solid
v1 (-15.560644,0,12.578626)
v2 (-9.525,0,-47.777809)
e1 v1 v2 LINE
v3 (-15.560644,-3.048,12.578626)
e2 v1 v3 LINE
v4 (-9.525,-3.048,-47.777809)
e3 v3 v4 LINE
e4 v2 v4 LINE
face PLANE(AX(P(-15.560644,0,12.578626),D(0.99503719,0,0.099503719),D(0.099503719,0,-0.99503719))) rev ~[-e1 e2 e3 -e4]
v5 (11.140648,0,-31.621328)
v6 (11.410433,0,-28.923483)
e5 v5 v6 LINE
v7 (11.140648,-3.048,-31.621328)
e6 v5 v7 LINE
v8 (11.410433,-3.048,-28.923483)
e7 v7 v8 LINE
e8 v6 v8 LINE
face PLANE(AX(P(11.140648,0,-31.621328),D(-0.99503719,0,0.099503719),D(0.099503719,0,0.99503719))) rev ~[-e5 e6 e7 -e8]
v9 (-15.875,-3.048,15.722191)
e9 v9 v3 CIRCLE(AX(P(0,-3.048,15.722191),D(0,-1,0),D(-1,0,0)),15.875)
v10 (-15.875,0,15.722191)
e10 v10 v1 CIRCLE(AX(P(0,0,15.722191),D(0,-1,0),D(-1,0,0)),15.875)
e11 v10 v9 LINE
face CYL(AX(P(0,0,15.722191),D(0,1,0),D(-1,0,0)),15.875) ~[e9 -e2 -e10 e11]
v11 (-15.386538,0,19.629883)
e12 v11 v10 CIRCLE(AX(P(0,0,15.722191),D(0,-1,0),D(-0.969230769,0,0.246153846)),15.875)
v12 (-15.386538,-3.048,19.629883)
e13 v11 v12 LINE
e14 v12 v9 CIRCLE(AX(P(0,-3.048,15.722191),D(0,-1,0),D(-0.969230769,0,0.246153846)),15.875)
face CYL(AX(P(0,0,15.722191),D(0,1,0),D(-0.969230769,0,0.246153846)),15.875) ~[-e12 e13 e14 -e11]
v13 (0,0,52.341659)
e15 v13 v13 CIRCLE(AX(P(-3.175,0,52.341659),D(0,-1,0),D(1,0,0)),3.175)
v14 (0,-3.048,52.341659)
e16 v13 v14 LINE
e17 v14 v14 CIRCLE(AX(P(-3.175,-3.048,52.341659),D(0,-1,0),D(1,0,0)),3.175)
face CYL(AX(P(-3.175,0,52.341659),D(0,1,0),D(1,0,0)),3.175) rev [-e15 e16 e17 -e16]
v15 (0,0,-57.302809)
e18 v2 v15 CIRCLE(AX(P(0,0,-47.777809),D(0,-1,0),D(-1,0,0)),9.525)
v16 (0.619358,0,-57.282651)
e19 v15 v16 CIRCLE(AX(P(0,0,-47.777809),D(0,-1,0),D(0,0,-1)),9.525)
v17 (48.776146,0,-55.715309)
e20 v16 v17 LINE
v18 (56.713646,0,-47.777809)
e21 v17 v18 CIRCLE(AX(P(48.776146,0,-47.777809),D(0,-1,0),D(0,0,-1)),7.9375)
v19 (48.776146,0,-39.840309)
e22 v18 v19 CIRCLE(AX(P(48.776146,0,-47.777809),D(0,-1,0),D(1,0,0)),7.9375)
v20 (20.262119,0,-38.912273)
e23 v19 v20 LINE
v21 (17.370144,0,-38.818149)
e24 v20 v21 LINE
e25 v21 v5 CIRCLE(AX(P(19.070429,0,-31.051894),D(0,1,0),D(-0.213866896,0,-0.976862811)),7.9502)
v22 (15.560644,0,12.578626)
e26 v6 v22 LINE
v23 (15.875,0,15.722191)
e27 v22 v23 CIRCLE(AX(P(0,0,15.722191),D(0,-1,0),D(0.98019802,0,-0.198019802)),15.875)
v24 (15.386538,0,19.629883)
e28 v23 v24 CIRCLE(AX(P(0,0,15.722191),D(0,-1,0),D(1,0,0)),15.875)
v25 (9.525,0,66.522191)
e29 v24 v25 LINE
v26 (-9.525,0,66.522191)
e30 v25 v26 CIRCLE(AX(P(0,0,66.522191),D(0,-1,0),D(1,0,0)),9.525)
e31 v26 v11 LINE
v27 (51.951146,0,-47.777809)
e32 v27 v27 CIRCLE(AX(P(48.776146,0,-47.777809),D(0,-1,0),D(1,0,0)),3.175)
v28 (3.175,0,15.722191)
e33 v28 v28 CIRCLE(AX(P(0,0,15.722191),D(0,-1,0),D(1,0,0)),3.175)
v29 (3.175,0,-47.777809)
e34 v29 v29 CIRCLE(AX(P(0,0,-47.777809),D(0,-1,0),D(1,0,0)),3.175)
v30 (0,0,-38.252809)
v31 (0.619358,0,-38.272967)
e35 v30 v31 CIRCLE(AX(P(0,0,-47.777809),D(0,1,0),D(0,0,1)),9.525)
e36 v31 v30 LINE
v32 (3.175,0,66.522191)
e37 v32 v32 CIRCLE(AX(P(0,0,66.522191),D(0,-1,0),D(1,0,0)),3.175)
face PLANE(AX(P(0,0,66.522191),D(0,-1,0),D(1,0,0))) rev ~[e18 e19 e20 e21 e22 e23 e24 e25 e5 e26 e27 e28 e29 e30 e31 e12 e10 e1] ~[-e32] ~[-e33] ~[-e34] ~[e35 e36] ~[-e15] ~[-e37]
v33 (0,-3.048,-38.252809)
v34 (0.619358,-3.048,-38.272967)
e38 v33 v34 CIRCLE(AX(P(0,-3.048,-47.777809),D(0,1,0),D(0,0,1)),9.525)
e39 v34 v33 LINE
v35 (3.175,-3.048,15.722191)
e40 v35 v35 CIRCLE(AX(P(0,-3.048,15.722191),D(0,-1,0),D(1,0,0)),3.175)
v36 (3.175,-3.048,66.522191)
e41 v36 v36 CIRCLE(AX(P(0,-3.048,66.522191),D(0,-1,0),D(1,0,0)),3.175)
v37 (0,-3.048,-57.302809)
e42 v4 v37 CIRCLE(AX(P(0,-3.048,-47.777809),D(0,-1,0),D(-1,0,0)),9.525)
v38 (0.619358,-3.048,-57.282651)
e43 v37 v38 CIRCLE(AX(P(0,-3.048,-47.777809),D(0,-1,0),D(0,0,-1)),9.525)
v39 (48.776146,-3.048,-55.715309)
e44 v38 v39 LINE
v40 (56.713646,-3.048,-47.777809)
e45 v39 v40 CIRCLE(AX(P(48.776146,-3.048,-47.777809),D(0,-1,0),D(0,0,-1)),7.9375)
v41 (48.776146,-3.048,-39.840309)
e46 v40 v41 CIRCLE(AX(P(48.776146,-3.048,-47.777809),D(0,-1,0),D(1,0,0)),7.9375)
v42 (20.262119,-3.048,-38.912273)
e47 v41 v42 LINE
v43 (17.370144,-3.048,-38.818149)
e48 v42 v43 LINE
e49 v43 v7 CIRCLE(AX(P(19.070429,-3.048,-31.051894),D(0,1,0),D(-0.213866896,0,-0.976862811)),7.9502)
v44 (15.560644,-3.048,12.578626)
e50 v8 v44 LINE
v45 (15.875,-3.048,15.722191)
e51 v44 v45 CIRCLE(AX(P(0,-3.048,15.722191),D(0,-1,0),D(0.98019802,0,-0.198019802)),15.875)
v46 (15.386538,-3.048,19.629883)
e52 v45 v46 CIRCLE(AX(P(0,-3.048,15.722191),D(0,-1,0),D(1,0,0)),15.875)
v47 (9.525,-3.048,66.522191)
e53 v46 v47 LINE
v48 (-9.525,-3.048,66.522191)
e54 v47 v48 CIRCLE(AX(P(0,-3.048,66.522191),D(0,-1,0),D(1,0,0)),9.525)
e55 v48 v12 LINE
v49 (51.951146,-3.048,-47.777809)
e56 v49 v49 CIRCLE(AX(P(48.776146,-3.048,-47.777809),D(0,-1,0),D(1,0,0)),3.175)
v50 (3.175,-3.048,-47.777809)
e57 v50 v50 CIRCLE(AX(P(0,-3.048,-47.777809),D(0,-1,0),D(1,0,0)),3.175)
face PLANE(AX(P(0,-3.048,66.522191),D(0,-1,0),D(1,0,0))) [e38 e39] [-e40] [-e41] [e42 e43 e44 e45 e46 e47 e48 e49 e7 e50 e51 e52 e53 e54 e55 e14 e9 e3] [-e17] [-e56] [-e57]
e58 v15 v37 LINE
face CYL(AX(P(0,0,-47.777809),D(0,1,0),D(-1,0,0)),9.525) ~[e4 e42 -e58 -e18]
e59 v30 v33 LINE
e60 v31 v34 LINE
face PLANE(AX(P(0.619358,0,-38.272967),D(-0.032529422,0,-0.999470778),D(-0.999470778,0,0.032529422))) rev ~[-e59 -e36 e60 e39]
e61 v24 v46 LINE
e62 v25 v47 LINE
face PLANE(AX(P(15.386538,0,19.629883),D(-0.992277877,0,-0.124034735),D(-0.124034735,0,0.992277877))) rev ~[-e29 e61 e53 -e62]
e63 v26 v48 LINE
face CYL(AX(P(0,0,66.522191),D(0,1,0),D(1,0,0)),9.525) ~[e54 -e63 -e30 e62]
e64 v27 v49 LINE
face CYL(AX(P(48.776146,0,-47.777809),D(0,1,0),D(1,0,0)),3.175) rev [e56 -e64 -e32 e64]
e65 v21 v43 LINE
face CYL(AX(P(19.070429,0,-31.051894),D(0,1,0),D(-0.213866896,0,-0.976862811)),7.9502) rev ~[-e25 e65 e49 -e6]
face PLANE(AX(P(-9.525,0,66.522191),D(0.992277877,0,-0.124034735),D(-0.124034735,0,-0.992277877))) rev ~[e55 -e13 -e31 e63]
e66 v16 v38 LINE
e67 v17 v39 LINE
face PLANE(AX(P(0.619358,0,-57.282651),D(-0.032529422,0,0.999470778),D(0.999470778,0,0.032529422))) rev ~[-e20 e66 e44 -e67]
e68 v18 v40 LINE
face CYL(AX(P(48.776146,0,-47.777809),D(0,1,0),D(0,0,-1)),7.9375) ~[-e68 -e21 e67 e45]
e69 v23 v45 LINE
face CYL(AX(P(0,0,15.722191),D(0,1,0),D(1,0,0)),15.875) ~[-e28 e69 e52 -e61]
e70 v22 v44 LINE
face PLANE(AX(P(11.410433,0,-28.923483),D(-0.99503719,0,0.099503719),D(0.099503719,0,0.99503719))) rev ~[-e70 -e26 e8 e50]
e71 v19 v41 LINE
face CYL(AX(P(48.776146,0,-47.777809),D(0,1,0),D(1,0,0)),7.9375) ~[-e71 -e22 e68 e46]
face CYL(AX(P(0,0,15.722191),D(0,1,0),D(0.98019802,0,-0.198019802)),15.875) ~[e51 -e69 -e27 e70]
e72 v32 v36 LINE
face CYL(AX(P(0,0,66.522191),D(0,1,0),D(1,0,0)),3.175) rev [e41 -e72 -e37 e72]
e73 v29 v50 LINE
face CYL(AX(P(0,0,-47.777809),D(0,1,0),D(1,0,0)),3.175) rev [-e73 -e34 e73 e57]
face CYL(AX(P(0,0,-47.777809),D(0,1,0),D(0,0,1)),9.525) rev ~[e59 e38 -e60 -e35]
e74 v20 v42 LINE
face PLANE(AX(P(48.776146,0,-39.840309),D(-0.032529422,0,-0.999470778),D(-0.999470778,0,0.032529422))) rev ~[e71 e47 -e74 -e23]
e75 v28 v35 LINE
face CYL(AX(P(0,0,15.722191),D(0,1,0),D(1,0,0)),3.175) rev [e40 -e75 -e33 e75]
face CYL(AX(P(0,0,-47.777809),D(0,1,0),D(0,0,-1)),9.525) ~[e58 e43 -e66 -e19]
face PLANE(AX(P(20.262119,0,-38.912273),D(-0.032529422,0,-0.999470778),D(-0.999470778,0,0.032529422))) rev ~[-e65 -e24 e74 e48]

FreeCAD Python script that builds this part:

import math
import FreeCAD as App
import Part
import Sketcher

V = App.Vector
Q = App.Units.Quantity

doc = App.newDocument("Part")
body = doc.addObject("PartDesign::Body", "Body")

# Sketch on XZ plane
sketch1 = body.newObject("Sketcher::SketchObject", "Sketch")
sketch1.AttachmentSupport = (doc.getObject("XZ_Plane"), [""])
sketch1.MapMode = "FlatFace"
sketch1.addGeometry(Part.ArcOfCircle(Part.Circle(V(0, -47.777809, 0), V(0, 0, 1), 9.525), math.radians(-90), math.radians(-86.271745)), False)
sketch1.addGeometry(Part.LineSegment(V(0.619358, -57.282651, 0), V(48.776146, -55.715309, 0)), False)
sketch1.addGeometry(Part.ArcOfCircle(Part.Circle(V(48.776146, -47.777809, 0), V(0, 0, 1), 7.9375), math.radians(-90), math.radians(0)), False)
sketch1.addGeometry(Part.ArcOfCircle(Part.Circle(V(48.776146, -47.777809, 0), V(0, 0, 1), 7.9375), math.radians(0), math.radians(90)), False)
sketch1.addGeometry(Part.LineSegment(V(48.776146, -39.840309, 0), V(20.262119, -38.912273, 0)), False)
sketch1.addGeometry(Part.LineSegment(V(20.262119, -38.912273, 0), V(17.370144, -38.818149, 0)), False)
sketch1.addGeometry(Part.ArcOfCircle(Part.Circle(V(19.070429, -31.051894, 0), V(0, 0, 1), 7.9502), math.radians(-175.892666), math.radians(-102.349059)), False)
sketch1.addGeometry(Part.LineSegment(V(11.140648, -31.621328, 0), V(11.410433, -28.923483, 0)), False)
sketch1.addGeometry(Part.LineSegment(V(11.410433, -28.923483, 0), V(15.560644, 12.578626, 0)), False)
sketch1.addGeometry(Part.ArcOfCircle(Part.Circle(V(0, 15.722191, 0), V(0, 0, 1), 15.875), math.radians(-11.421186), math.radians(0)), False)
sketch1.addGeometry(Part.ArcOfCircle(Part.Circle(V(0, 15.722191, 0), V(0, 0, 1), 15.875), math.radians(0), math.radians(14.250033)), False)
sketch1.addGeometry(Part.LineSegment(V(15.386538, 19.629883, 0), V(9.525, 66.522191, 0)), False)
sketch1.addGeometry(Part.ArcOfCircle(Part.Circle(V(0, 66.522191, 0), V(0, 0, 1), 9.525), math.radians(0), math.radians(180)), False)
sketch1.addGeometry(Part.LineSegment(V(-9.525, 66.522191, 0), V(-15.386538, 19.629883, 0)), False)
sketch1.addGeometry(Part.ArcOfCircle(Part.Circle(V(0, 15.722191, 0), V(0, 0, 1), 15.875), math.radians(165.749967), math.radians(180)), False)
sketch1.addGeometry(Part.ArcOfCircle(Part.Circle(V(0, 15.722191, 0), V(0, 0, 1), 15.875), math.radians(180), math.radians(191.421186)), False)
sketch1.addGeometry(Part.LineSegment(V(-15.560644, 12.578626, 0), V(-9.525, -47.777809, 0)), False)
sketch1.addGeometry(Part.ArcOfCircle(Part.Circle(V(0, -47.777809, 0), V(0, 0, 1), 9.525), math.radians(180), math.radians(270)), False)
sketch1.addGeometry(Part.Circle(V(0, -47.777809, 0), V(0, 0, 1), 3.175), False)
sketch1.addGeometry(Part.LineSegment(V(0.619358, -38.272967, 0), V(0, -38.252809, 0)), False)
sketch1.addGeometry(Part.ArcOfCircle(Part.Circle(V(0, -47.777809, 0), V(0, 0, 1), 9.525), math.radians(86.271745), math.radians(90)), False)
sketch1.addGeometry(Part.Circle(V(48.776146, -47.777809, 0), V(0, 0, 1), 3.175), False)
sketch1.addGeometry(Part.Circle(V(0, 15.722191, 0), V(0, 0, 1), 3.175), False)
sketch1.addGeometry(Part.Circle(V(-3.175, 52.341659, 0), V(0, 0, 1), 3.175), False)
sketch1.addGeometry(Part.Circle(V(0, 66.522191, 0), V(0, 0, 1), 3.175), False)
sketch1.addConstraint(Sketcher.Constraint("Coincident", 0, 2, 1, 1))
sketch1.addConstraint(Sketcher.Constraint("Coincident", 1, 2, 2, 1))
sketch1.addConstraint(Sketcher.Constraint("Coincident", 2, 2, 3, 1))
sketch1.addConstraint(Sketcher.Constraint("Coincident", 3, 2, 4, 1))
sketch1.addConstraint(Sketcher.Constraint("Coincident", 4, 2, 5, 1))
sketch1.addConstraint(Sketcher.Constraint("Coincident", 5, 2, 6, 2))
sketch1.addConstraint(Sketcher.Constraint("Coincident", 6, 1, 7, 1))
sketch1.addConstraint(Sketcher.Constraint("Coincident", 7, 2, 8, 1))
sketch1.addConstraint(Sketcher.Constraint("Coincident", 8, 2, 9, 1))
sketch1.addConstraint(Sketcher.Constraint("Coincident", 9, 2, 10, 1))
sketch1.addConstraint(Sketcher.Constraint("Coincident", 10, 2, 11, 1))
sketch1.addConstraint(Sketcher.Constraint("Coincident", 11, 2, 12, 1))
sketch1.addConstraint(Sketcher.Constraint("Coincident", 12, 2, 13, 1))
sketch1.addConstraint(Sketcher.Constraint("Coincident", 13, 2, 14, 1))
sketch1.addConstraint(Sketcher.Constraint("Coincident", 14, 2, 15, 1))
sketch1.addConstraint(Sketcher.Constraint("Coincident", 15, 2, 16, 1))
sketch1.addConstraint(Sketcher.Constraint("Coincident", 16, 2, 17, 1))
sketch1.addConstraint(Sketcher.Constraint("Coincident", 17, 2, 0, 1))
sketch1.addConstraint(Sketcher.Constraint("Coincident", 19, 1, 20, 1))
sketch1.addConstraint(Sketcher.Constraint("Coincident", 20, 2, 19, 2))
sketch1.addConstraint(Sketcher.Constraint("Coincident", 3, 3, 2, 3))
sketch1.addConstraint(Sketcher.Constraint("Coincident", 10, 3, 9, 3))
sketch1.addConstraint(Sketcher.Constraint("Coincident", 14, 3, 9, 3))
sketch1.addConstraint(Sketcher.Constraint("Coincident", 15, 3, 9, 3))
sketch1.addConstraint(Sketcher.Constraint("Coincident", 17, 3, 0, 3))
sketch1.addConstraint(Sketcher.Constraint("Coincident", 18, 3, 0, 3))
sketch1.addConstraint(Sketcher.Constraint("Coincident", 20, 3, 0, 3))
sketch1.addConstraint(Sketcher.Constraint("Coincident", 21, 3, 2, 3))
sketch1.addConstraint(Sketcher.Constraint("Coincident", 22, 3, 9, 3))
sketch1.addConstraint(Sketcher.Constraint("Coincident", 24, 3, 12, 3))
sketch1.addConstraint(Sketcher.Constraint("PointOnObject", 0, 3, -2))
sketch1.addConstraint(Sketcher.Constraint("PointOnObject", 9, 3, -2))
sketch1.addConstraint(Sketcher.Constraint("PointOnObject", 12, 3, -2))
sketch1.addConstraint(Sketcher.Constraint("PointOnObject", 17, 2, -2))
sketch1.addConstraint(Sketcher.Constraint("PointOnObject", 20, 2, -2))
sketch1.addConstraint(Sketcher.Constraint("Diameter", 18, Q("0.25 in")))
sketch1.addConstraint(Sketcher.Constraint("Diameter", 21, Q("0.25 in")))
sketch1.addConstraint(Sketcher.Constraint("Diameter", 22, Q("0.25 in")))
sketch1.addConstraint(Sketcher.Constraint("Diameter", 23, Q("0.25 in")))
sketch1.addConstraint(Sketcher.Constraint("Diameter", 24, Q("0.25 in")))
sketch1.addConstraint(Sketcher.Constraint("Radius", 0, Q("0.375 in")))
sketch1.addConstraint(Sketcher.Constraint("Radius", 2, Q("0.3125 in")))
sketch1.addConstraint(Sketcher.Constraint("Radius", 6, Q("0.313 in")))
sketch1.addConstraint(Sketcher.Constraint("Radius", 9, Q("0.625 in")))
sketch1.addConstraint(Sketcher.Constraint("Radius", 12, Q("0.375 in")))
sketch1.addConstraint(Sketcher.Constraint("Radius", 14, Q("0.625 in")))
sketch1.addConstraint(Sketcher.Constraint("Radius", 20, Q("0.375 in")))
sketch1.addConstraint(Sketcher.Constraint("DistanceY", 9, 3, 12, 3, Q("2 in")))
sketch1.addConstraint(Sketcher.Constraint("DistanceY", 9, 2, 11, 2, Q("2 in")))
sketch1.addConstraint(Sketcher.Constraint("DistanceY", 10, 3, 12, 2, Q("2 in")))
sketch1.addConstraint(Sketcher.Constraint("DistanceY", 0, 3, 9, 3, Q("2.5 in")))
sketch1.addConstraint(Sketcher.Constraint("DistanceY", 2, 3, 9, 3, Q("2.5 in")))
sketch1.addConstraint(Sketcher.Constraint("DistanceX", 23, 3, 11, 2, Q("0.5 in")))
sketch1.addConstraint(Sketcher.Constraint("DistanceX", 1, 2, 2, 2, Q("0.3125 in")))
sketch1.addConstraint(Sketcher.Constraint("DistanceY", 1, 2, 2, 2, Q("0.3125 in")))
sketch1.addConstraint(Sketcher.Constraint("DistanceX", 3, 2, 2, 2, Q("0.3125 in")))
sketch1.addConstraint(Sketcher.Constraint("Distance", 7, Q("2.711301 mm")))
sketch1.addConstraint(Sketcher.Constraint("DistanceY", 0, 3, -1, 1, Q("47.777809 mm")))
sketch1.addConstraint(Sketcher.Constraint("DistanceX", -1, 1, 6, 3, Q("19.070429 mm")))
sketch1.addConstraint(Sketcher.Constraint("DistanceY", -1, 1, 23, 3, Q("52.341659 mm")))
sketch1.addConstraint(Sketcher.Constraint("DistanceY", 0, 2, -1, 1, Q("57.282651 mm")))
sketch1.addConstraint(Sketcher.Constraint("DistanceX", -1, 1, 4, 2, Q("20.262119 mm")))
sketch1.addConstraint(Sketcher.Constraint("DistanceY", 5, 2, -1, 1, Q("38.818149 mm")))
sketch1.addConstraint(Sketcher.Constraint("DistanceX", -1, 1, 6, 1, Q("11.140648 mm")))
sketch1.addConstraint(Sketcher.Constraint("DistanceY", 6, 1, -1, 1, Q("31.621328 mm")))
sketch1.addConstraint(Sketcher.Constraint("DistanceY", -1, 1, 9, 2, Q("15.722191 mm")))
sketch1.addConstraint(Sketcher.Constraint("DistanceX", -1, 1, 10, 2, Q("15.386538 mm")))
sketch1.addConstraint(Sketcher.Constraint("DistanceX", 13, 2, -1, 1, Q("15.386538 mm")))
sketch1.addConstraint(Sketcher.Constraint("DistanceY", -1, 1, 14, 2, Q("15.722191 mm")))
sketch1.addConstraint(Sketcher.Constraint("DistanceY", 16, 2, -1, 1, Q("47.777809 mm")))
sketch1.addConstraint(Sketcher.Constraint("DistanceX", 0, 2, 1, 2, Q("48.156788 mm")))
sketch1.addConstraint(Sketcher.Constraint("DistanceY", 4, 2, 6, 3, Q("7.860379 mm")))
sketch1.addConstraint(Sketcher.Constraint("DistanceY", 6, 3, 7, 2, Q("2.128412 mm")))
sketch1.addConstraint(Sketcher.Constraint("DistanceY", 17, 3, 19, 1, Q("9.504842 mm")))
sketch1.addConstraint(Sketcher.Constraint("Distance", 8, Q("41.709103 mm")))
sketch1.addConstraint(Sketcher.Constraint("Distance", 16, Q("60.657467 mm")))
pad1 = body.newObject("PartDesign::Pad", "Pad")
pad1.Profile = sketch1
pad1.Length = Q("0.12 in")

doc.recompute()
